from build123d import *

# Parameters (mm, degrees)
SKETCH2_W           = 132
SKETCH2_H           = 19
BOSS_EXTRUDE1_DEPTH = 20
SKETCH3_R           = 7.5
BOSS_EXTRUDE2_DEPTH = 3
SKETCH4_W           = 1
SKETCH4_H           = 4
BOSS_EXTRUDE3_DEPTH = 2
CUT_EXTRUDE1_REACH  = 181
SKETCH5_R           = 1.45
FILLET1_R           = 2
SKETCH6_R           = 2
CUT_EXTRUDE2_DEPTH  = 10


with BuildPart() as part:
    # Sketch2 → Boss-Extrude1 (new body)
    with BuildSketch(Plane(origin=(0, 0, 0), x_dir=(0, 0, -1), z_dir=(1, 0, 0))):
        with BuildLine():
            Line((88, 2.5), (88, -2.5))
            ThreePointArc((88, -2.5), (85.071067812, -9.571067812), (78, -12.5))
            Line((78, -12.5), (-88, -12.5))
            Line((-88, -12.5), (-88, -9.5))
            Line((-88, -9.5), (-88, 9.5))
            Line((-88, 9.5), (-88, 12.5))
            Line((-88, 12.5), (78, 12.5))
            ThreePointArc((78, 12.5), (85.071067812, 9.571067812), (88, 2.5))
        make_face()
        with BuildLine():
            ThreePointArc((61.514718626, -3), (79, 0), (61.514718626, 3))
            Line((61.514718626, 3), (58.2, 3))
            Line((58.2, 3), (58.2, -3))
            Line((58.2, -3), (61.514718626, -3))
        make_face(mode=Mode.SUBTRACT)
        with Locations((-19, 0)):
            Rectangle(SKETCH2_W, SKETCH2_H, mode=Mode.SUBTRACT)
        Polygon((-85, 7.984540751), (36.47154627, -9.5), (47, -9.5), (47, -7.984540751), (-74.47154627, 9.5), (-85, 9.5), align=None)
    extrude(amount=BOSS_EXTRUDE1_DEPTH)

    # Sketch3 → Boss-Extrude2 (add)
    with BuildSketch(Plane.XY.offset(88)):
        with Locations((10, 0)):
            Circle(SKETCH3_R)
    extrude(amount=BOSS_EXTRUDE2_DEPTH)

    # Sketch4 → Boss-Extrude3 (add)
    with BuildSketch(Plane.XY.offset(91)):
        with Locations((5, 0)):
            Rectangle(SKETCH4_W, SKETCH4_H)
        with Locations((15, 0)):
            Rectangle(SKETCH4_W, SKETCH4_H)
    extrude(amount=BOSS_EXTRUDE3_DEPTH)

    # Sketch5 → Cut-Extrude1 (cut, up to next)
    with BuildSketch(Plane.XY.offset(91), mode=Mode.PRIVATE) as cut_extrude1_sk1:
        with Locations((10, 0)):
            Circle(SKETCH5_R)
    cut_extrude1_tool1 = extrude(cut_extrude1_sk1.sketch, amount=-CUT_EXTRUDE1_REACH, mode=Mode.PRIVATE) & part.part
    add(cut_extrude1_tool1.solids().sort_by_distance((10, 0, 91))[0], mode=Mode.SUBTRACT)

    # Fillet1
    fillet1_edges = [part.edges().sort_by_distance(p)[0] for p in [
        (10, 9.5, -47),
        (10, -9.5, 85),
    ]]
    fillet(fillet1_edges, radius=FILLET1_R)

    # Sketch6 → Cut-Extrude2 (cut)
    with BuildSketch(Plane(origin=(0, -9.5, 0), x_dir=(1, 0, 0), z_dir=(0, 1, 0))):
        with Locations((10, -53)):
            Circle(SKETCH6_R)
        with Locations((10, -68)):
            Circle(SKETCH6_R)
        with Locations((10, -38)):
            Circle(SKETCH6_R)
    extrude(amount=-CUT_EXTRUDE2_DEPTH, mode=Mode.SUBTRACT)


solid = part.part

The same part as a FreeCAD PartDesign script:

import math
import FreeCAD as App
import Part
import Sketcher
from FreeCAD import Vector


def edges_at(feature, points):
    """Names of the edges that pass closest to the given points."""
    edges = feature.Shape.Edges
    near = lambda p: min(range(len(edges)), key=lambda i: edges[i].distToShape(Part.Vertex(*p))[0])
    return sorted({f"Edge{near(p) + 1}" for p in points})

doc = App.newDocument("Part")
body = doc.addObject("PartDesign::Body", "Body")

# Sketch on YZ plane
sketch1 = body.newObject("Sketcher::SketchObject", "Sketch")
sketch1.AttachmentSupport = (doc.getObject("YZ_Plane"), [""])
sketch1.MapMode = "FlatFace"
sketch1.addGeometry([
    Part.LineSegment(Vector(-2.5, -88, 0), Vector(2.5, -88, 0)),  # 0
    Part.ArcOfCircle(Part.Circle(Vector(2.5, -78, 0), Vector(0, 0, 1), 10), math.radians(-90), math.radians(0)),  # 1
    Part.LineSegment(Vector(12.5, -78, 0), Vector(12.5, 88, 0)),  # 2
    Part.LineSegment(Vector(12.5, 88, 0), Vector(-12.5, 88, 0)),  # 3
    Part.LineSegment(Vector(-12.5, 88, 0), Vector(-12.5, -78, 0)),  # 4
    Part.ArcOfCircle(Part.Circle(Vector(-2.5, -78, 0), Vector(0, 0, 1), 10), math.radians(180), math.radians(270)),  # 5
    Part.LineSegment(Vector(-3, -61.5, 0), Vector(-3, -58.2, 0)),  # 6
    Part.LineSegment(Vector(-3, -58.2, 0), Vector(3, -58.2, 0)),  # 7
    Part.LineSegment(Vector(3, -58.2, 0), Vector(3, -61.5, 0)),  # 8
    Part.ArcOfCircle(Part.Circle(Vector(0, -70, 0), Vector(0, 0, 1), 9), math.radians(109), math.radians(431)),  # 9
    Part.LineSegment(Vector(-9.5, 85, 0), Vector(8, 85, 0)),  # 10
    Part.LineSegment(Vector(8, 85, 0), Vector(-9.5, -36.5, 0)),  # 11
    Part.LineSegment(Vector(-9.5, -36.5, 0), Vector(-9.5, 85, 0)),  # 12
    Part.LineSegment(Vector(9.5, 74.5, 0), Vector(9.5, -47, 0)),  # 13
    Part.LineSegment(Vector(9.5, -47, 0), Vector(-8, -47, 0)),  # 14
    Part.LineSegment(Vector(-8, -47, 0), Vector(9.5, 74.5, 0)),  # 15
], False)
sketch1.addConstraint([
    Sketcher.Constraint("Tangent", 0, 2, 1, 1),
    Sketcher.Constraint("Tangent", 1, 2, 2, 1),
    Sketcher.Constraint("Coincident", 2, 2, 3, 1),
    Sketcher.Constraint("Coincident", 3, 2, 4, 1),
    Sketcher.Constraint("Tangent", 4, 2, 5, 1),
    Sketcher.Constraint("Tangent", 5, 2, 0, 1),
    Sketcher.Constraint("Coincident", 6, 2, 7, 1),
    Sketcher.Constraint("Coincident", 7, 2, 8, 1),
    Sketcher.Constraint("Coincident", 8, 2, 9, 2),
    Sketcher.Constraint("Coincident", 9, 1, 6, 1),
    Sketcher.Constraint("Coincident", 10, 2, 11, 1),
    Sketcher.Constraint("Coincident", 11, 2, 12, 1),
    Sketcher.Constraint("Coincident", 12, 2, 10, 1),
    Sketcher.Constraint("Coincident", 13, 2, 14, 1),
    Sketcher.Constraint("Coincident", 14, 2, 15, 1),
    Sketcher.Constraint("Coincident", 15, 2, 13, 1),
    Sketcher.Constraint("Horizontal", 0),
    Sketcher.Constraint("Vertical", 2),
    Sketcher.Constraint("Horizontal", 3),
    Sketcher.Constraint("Vertical", 4),
    Sketcher.Constraint("Vertical", 6),
    Sketcher.Constraint("Horizontal", 7),
    Sketcher.Constraint("Vertical", 8),
    Sketcher.Constraint("Horizontal", 10),
    Sketcher.Constraint("Vertical", 12),
    Sketcher.Constraint("Vertical", 13),
    Sketcher.Constraint("Horizontal", 14),
    Sketcher.Constraint("Equal", 1, 5),
    Sketcher.Constraint("Symmetric", 8, 2, 9, 1, -2),
    Sketcher.Constraint("Parallel", 11, 15),
    Sketcher.Constraint("Equal", 10, 14),
    Sketcher.Constraint("Radius", 1, 10.0),
    Sketcher.Constraint("Radius", 9, 9.0),
    Sketcher.Constraint("DistanceX", 0, 1, 0, 2, 5.0),
    Sketcher.Constraint("DistanceX", 7, 1, 7, 2, 6.0),
    Sketcher.Constraint("DistanceY", 2, 1, 2, 2, 166.0),
    Sketcher.Constraint("DistanceY", 1, 3, -1, 1, 78.0),
    Sketcher.Constraint("DistanceY", 9, 3, -1, 1, 70.0),
    Sketcher.Constraint("DistanceY", -1, 1, 10, 2, 85.0),
    Sketcher.Constraint("DistanceY", 13, 2, -1, 1, 47.0),
    Sketcher.Constraint("DistanceX", 3, 2, 12, 2, 3.0),
    Sketcher.Constraint("DistanceX", 11, 2, 13, 2, 19.0),
    Sketcher.Constraint("DistanceX", -1, 1, 1, 3, 2.5),
    Sketcher.Constraint("DistanceY", 6, 2, -1, 1, 58.2),
    Sketcher.Constraint("DistanceX", 10, 1, 10, 2, 17.484541),
    Sketcher.Constraint("DistanceY", 12, 1, 12, 2, 121.471546),
])
pad1 = body.newObject("PartDesign::Pad", "Pad")
pad1.Profile = sketch1
pad1.Length = 20

# Sketch on XY plane
sketch2 = body.newObject("Sketcher::SketchObject", "Sketch001")
sketch2.AttachmentSupport = (doc.getObject("XY_Plane"), [""])
sketch2.MapMode = "FlatFace"
sketch2.AttachmentOffset = App.Placement(Vector(0, 0, 88), App.Rotation())
sketch2.addGeometry(Part.Circle(Vector(10, 0, 0), Vector(0, 0, 1), 8), False)
sketch2.addConstraint([
    Sketcher.Constraint("PointOnObject", 0, 3, -1),
    Sketcher.Constraint("Diameter", 0, 15.0),
    Sketcher.Constraint("DistanceX", -1, 1, 0, 3, 10.0),
])
pad2 = body.newObject("PartDesign::Pad", "Pad001")
pad2.Profile = sketch2
pad2.Length = 3

# Sketch on XY plane
sketch3 = body.newObject("Sketcher::SketchObject", "Sketch002")
sketch3.AttachmentSupport = (doc.getObject("XY_Plane"), [""])
sketch3.MapMode = "FlatFace"
sketch3.AttachmentOffset = App.Placement(Vector(0, 0, 91), App.Rotation())
sketch3.addGeometry([
    Part.LineSegment(Vector(4.5, 2, 0), Vector(4.5, -2, 0)),  # 0
    Part.LineSegment(Vector(4.5, -2, 0), Vector(5.5, -2, 0)),  # 1
    Part.LineSegment(Vector(5.5, -2, 0), Vector(5.5, 2, 0)),  # 2
    Part.LineSegment(Vector(5.5, 2, 0), Vector(4.5, 2, 0)),  # 3
    Part.LineSegment(Vector(14.5, 2, 0), Vector(14.5, -2, 0)),  # 4
    Part.LineSegment(Vector(14.5, -2, 0), Vector(15.5, -2, 0)),  # 5
    Part.LineSegment(Vector(15.5, -2, 0), Vector(15.5, 2, 0)),  # 6
    Part.LineSegment(Vector(15.5, 2, 0), Vector(14.5, 2, 0)),  # 7
], False)
sketch3.addConstraint([
    Sketcher.Constraint("Coincident", 0, 2, 1, 1),
    Sketcher.Constraint("Coincident", 1, 2, 2, 1),
    Sketcher.Constraint("Coincident", 2, 2, 3, 1),
    Sketcher.Constraint("Coincident", 3, 2, 0, 1),
    Sketcher.Constraint("Coincident", 4, 2, 5, 1),
    Sketcher.Constraint("Coincident", 5, 2, 6, 1),
    Sketcher.Constraint("Coincident", 6, 2, 7, 1),
    Sketcher.Constraint("Coincident", 7, 2, 4, 1),
    Sketcher.Constraint("Vertical", 0),
    Sketcher.Constraint("Horizontal", 1),
    Sketcher.Constraint("Vertical", 2),
    Sketcher.Constraint("Horizontal", 3),
    Sketcher.Constraint("Vertical", 4),
    Sketcher.Constraint("Horizontal", 5),
    Sketcher.Constraint("Vertical", 6),
    Sketcher.Constraint("Horizontal", 7),
    Sketcher.Constraint("Horizontal", 1, 2, 4, 2),
    Sketcher.Constraint("Horizontal", 3, 2, 6, 2),
    Sketcher.Constraint("Equal", 3, 5),
    Sketcher.Constraint("DistanceX", 1, 1, 1, 2, 1.0),
    Sketcher.Constraint("DistanceY", 0, 2, 0, 1, 4.0),
    Sketcher.Constraint("DistanceY", 0, 2, -1, 1, 2.0),
    Sketcher.Constraint("DistanceX", 1, 2, 4, 2, 9.0),
    Sketcher.Constraint("DistanceX", -1, 1, 0, 2, 4.5),
])
pad3 = body.newObject("PartDesign::Pad", "Pad002")
pad3.Profile = sketch3
pad3.Length = 2

# Sketch on XY plane
sketch4 = body.newObject("Sketcher::SketchObject", "Sketch003")
sketch4.AttachmentSupport = (doc.getObject("XY_Plane"), [""])
sketch4.MapMode = "FlatFace"
sketch4.AttachmentOffset = App.Placement(Vector(0, 0, 91), App.Rotation())
sketch4.addGeometry(Part.Circle(Vector(10, 0, 0), Vector(0, 0, 1), 1.4), False)
sketch4.addConstraint([
    Sketcher.Constraint("PointOnObject", 0, 3, -1),
    Sketcher.Constraint("Diameter", 0, 2.9),
    Sketcher.Constraint("DistanceX", -1, 1, 0, 3, 10.0),
])
pocket1 = body.newObject("PartDesign::Pocket", "Pocket")
pocket1.Profile = sketch4
pocket1.Type = "UpToFirst"
doc.recompute()

fillet = body.newObject("PartDesign::Fillet", "Fillet")
fillet.Base = (pocket1, edges_at(pocket1, [(10, 9.5, -47), (10, -9.5, 85)]))
fillet.Radius = 2

# Sketch on XZ plane
sketch5 = body.newObject("Sketcher::SketchObject", "Sketch004")
sketch5.AttachmentSupport = (doc.getObject("XZ_Plane"), [""])
sketch5.MapMode = "FlatFace"
sketch5.AttachmentOffset = App.Placement(Vector(0, 0, 9.5), App.Rotation())
sketch5.addGeometry([
    Part.Circle(Vector(10, 53, 0), Vector(0, 0, 1), 2),
    Part.Circle(Vector(10, 68, 0), Vector(0, 0, 1), 2),
    Part.Circle(Vector(10, 38, 0), Vector(0, 0, 1), 2),
], False)
sketch5.addConstraint([
    Sketcher.Constraint("Equal", 0, 1),
    Sketcher.Constraint("Equal", 1, 2),
    Sketcher.Constraint("Vertical", 0, 3, 1, 3),
    Sketcher.Constraint("Vertical", 1, 3, 2, 3),
    Sketcher.Constraint("Diameter", 0, 4.0),
    Sketcher.Constraint("DistanceX", -1, 1, 0, 3, 10.0),
    Sketcher.Constraint("DistanceY", -1, 1, 0, 3, 53.0),
    Sketcher.Constraint("DistanceY", -1, 1, 1, 3, 68.0),
    Sketcher.Constraint("DistanceY", -1, 1, 2, 3, 38.0),
])
pocket2 = body.newObject("PartDesign::Pocket", "Pocket001")
pocket2.Profile = sketch5
pocket2.Length = 10
pocket2.Reversed = True

doc.recompute()
